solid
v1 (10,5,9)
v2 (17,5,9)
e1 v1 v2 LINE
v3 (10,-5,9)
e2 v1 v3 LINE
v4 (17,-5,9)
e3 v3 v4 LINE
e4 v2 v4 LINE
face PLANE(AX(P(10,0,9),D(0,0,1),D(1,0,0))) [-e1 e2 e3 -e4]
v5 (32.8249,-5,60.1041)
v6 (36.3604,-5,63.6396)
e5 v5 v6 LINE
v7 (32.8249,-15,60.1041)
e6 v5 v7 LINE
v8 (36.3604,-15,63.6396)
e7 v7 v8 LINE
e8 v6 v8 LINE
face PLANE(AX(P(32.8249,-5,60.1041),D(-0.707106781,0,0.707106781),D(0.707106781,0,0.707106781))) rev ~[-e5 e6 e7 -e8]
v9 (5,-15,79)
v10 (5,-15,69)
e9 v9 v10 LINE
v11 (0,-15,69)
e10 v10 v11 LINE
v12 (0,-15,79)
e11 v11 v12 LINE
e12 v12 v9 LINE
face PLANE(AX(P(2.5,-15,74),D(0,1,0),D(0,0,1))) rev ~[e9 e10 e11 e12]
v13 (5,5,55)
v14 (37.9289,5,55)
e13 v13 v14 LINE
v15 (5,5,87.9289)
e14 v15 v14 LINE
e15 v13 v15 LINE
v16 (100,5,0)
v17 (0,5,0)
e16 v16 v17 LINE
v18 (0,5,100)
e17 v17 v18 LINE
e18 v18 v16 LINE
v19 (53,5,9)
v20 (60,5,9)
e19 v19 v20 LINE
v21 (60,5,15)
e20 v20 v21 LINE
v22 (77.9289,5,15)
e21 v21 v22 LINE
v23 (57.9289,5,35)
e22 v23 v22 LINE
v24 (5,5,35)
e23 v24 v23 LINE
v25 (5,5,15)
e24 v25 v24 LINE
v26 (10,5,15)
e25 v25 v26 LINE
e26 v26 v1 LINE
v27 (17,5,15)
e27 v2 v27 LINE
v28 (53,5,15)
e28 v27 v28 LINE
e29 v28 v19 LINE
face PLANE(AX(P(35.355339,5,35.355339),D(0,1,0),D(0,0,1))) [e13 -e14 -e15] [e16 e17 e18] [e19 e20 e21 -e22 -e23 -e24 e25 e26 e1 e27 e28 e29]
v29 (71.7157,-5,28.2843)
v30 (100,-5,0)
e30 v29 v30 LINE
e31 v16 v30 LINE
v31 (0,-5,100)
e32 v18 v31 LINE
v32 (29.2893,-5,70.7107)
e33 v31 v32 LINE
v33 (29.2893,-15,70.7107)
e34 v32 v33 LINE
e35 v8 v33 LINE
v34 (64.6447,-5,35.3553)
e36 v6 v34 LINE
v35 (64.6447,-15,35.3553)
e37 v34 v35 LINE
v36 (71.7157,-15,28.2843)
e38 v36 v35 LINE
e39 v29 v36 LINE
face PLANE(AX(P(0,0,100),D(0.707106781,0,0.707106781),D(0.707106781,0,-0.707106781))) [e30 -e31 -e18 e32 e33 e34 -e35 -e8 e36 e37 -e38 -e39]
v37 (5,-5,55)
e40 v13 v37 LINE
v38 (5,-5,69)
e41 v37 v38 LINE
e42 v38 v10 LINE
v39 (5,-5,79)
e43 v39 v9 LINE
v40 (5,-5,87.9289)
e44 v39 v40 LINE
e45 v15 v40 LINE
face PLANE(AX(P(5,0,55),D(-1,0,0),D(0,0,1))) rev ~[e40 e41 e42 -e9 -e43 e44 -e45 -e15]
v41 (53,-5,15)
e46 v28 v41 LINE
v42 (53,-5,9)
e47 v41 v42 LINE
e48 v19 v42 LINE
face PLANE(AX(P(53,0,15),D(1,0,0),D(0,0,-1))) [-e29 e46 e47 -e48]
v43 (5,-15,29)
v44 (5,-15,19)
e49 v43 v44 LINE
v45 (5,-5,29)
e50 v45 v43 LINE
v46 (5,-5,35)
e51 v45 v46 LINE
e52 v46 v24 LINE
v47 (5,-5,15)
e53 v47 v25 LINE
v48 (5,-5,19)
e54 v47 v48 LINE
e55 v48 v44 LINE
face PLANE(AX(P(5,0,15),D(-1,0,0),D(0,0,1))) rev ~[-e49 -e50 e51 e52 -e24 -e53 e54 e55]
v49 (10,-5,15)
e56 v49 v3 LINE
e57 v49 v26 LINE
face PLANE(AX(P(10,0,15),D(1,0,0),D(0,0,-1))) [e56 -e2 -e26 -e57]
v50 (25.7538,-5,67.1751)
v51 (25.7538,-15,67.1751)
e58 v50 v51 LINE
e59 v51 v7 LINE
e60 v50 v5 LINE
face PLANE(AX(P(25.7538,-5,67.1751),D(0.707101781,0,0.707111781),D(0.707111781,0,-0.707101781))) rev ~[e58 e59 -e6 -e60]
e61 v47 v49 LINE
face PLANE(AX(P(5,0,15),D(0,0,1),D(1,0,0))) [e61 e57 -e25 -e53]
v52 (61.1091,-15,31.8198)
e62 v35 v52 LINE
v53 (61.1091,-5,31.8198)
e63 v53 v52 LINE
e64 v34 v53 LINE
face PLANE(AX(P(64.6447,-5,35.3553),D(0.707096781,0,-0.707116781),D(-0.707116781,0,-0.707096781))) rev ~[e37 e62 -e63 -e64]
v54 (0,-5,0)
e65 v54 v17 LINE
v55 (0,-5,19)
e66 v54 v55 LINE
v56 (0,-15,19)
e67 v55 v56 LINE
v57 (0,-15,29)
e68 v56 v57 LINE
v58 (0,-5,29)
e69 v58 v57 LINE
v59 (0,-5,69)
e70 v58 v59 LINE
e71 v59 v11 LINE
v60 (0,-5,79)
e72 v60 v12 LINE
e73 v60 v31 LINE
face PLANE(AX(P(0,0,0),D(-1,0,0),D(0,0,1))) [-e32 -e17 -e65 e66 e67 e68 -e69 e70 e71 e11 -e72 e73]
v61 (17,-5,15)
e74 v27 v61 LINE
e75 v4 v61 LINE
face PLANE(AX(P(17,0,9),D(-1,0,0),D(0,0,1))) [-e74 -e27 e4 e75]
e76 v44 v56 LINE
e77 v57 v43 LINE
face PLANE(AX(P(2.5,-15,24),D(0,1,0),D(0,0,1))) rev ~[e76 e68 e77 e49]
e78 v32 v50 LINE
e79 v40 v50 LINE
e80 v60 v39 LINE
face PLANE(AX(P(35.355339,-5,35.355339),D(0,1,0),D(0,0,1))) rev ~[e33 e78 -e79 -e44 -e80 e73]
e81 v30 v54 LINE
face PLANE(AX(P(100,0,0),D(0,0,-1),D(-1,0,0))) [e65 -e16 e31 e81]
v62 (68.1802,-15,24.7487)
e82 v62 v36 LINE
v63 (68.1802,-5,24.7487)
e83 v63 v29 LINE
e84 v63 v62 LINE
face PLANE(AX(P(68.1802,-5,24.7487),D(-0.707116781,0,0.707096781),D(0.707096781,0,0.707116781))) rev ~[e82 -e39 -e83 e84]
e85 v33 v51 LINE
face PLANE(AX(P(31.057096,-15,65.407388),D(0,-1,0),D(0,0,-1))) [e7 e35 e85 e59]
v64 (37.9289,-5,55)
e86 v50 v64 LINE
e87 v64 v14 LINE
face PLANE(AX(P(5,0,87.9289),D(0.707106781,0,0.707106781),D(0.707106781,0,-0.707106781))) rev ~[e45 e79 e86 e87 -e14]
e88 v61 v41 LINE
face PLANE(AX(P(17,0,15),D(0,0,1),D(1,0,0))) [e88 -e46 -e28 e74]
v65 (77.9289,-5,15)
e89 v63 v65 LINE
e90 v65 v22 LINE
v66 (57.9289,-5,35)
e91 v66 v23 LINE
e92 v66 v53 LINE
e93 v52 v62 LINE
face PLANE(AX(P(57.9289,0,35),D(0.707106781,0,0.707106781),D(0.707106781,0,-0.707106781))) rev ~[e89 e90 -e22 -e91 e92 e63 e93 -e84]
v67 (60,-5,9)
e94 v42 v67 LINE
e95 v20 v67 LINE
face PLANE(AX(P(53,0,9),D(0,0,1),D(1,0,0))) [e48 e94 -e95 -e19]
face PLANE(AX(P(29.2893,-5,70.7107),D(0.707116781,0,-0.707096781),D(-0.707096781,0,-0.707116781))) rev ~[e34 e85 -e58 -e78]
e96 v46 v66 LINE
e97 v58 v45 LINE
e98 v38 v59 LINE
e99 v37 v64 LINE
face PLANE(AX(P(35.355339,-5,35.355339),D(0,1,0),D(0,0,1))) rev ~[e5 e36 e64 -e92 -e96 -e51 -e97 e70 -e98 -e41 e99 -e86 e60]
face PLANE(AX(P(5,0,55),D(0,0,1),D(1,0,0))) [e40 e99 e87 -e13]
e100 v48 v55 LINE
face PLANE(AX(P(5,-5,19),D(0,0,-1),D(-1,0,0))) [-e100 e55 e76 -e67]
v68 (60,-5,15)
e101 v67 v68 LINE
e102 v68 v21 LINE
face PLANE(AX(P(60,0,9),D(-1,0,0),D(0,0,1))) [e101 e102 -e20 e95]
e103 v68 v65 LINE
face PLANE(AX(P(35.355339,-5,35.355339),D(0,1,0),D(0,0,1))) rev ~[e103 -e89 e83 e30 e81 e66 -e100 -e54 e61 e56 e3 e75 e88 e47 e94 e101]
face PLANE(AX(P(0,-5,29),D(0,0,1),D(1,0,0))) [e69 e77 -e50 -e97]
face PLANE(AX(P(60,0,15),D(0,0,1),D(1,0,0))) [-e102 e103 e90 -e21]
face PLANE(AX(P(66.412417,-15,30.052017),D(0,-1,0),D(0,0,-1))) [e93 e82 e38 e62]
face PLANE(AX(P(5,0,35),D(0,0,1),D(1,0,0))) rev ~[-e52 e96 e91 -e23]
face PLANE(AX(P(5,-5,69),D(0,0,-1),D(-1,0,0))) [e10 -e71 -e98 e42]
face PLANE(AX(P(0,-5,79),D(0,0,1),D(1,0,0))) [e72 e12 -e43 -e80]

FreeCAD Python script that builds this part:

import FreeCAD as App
import Part
import Sketcher

V = App.Vector
Q = App.Units.Quantity

doc = App.newDocument("Part")
body = doc.addObject("PartDesign::Body", "Body")

# Sketch on XZ plane
sketch1 = doc.addObject("Sketcher::SketchObject", "Sketch")
body.addObject(sketch1)
sketch1.AttachmentSupport = (doc.XZ_Plane, [""])
sketch1.MapMode = "FlatFace"
sketch1.addGeometry(Part.LineSegment(V(0, 0, 0), V(100, 0, 0)), False)
sketch1.addGeometry(Part.LineSegment(V(100, 0, 0), V(0, 100, 0)), False)
sketch1.addGeometry(Part.LineSegment(V(0, 100, 0), V(0, 0, 0)), False)
sketch1.addGeometry(Part.LineSegment(V(60, 15, 0), V(60, 9, 0)), False)
sketch1.addGeometry(Part.LineSegment(V(60, 9, 0), V(53, 9, 0)), False)
sketch1.addGeometry(Part.LineSegment(V(53, 9, 0), V(53, 15, 0)), False)
sketch1.addGeometry(Part.LineSegment(V(53, 15, 0), V(17, 15, 0)), False)
sketch1.addGeometry(Part.LineSegment(V(17, 15, 0), V(17, 9, 0)), False)
sketch1.addGeometry(Part.LineSegment(V(17, 9, 0), V(10, 9, 0)), False)
sketch1.addGeometry(Part.LineSegment(V(10, 9, 0), V(10, 15, 0)), False)
sketch1.addGeometry(Part.LineSegment(V(10, 15, 0), V(5, 15, 0)), False)
sketch1.addGeometry(Part.LineSegment(V(5, 15, 0), V(5, 35, 0)), False)
sketch1.addGeometry(Part.LineSegment(V(5, 35, 0), V(57.9289, 35, 0)), False)
sketch1.addGeometry(Part.LineSegment(V(57.9289, 35, 0), V(77.9289, 15, 0)), False)
sketch1.addGeometry(Part.LineSegment(V(77.9289, 15, 0), V(60, 15, 0)), False)
sketch1.addGeometry(Part.LineSegment(V(37.9289, 55, 0), V(5, 55, 0)), False)
sketch1.addGeometry(Part.LineSegment(V(5, 55, 0), V(5, 87.9289, 0)), False)
sketch1.addGeometry(Part.LineSegment(V(5, 87.9289, 0), V(37.9289, 55, 0)), False)
sketch1.addConstraint(Sketcher.Constraint("Coincident", 0, 2, 1, 1))
sketch1.addConstraint(Sketcher.Constraint("Coincident", 1, 2, 2, 1))
sketch1.addConstraint(Sketcher.Constraint("Coincident", 2, 2, 0, 1))
sketch1.addConstraint(Sketcher.Constraint("Coincident", 3, 2, 4, 1))
sketch1.addConstraint(Sketcher.Constraint("Coincident", 4, 2, 5, 1))
sketch1.addConstraint(Sketcher.Constraint("Coincident", 5, 2, 6, 1))
sketch1.addConstraint(Sketcher.Constraint("Coincident", 6, 2, 7, 1))
sketch1.addConstraint(Sketcher.Constraint("Coincident", 7, 2, 8, 1))
sketch1.addConstraint(Sketcher.Constraint("Coincident", 8, 2, 9, 1))
sketch1.addConstraint(Sketcher.Constraint("Coincident", 9, 2, 10, 1))
sketch1.addConstraint(Sketcher.Constraint("Coincident", 10, 2, 11, 1))
sketch1.addConstraint(Sketcher.Constraint("Coincident", 11, 2, 12, 1))
sketch1.addConstraint(Sketcher.Constraint("Coincident", 12, 2, 13, 1))
sketch1.addConstraint(Sketcher.Constraint("Coincident", 13, 2, 14, 1))
sketch1.addConstraint(Sketcher.Constraint("Coincident", 14, 2, 3, 1))
sketch1.addConstraint(Sketcher.Constraint("Coincident", 15, 2, 16, 1))
sketch1.addConstraint(Sketcher.Constraint("Coincident", 16, 2, 17, 1))
sketch1.addConstraint(Sketcher.Constraint("Coincident", 17, 2, 15, 1))
sketch1.addConstraint(Sketcher.Constraint("Horizontal", 0))
sketch1.addConstraint(Sketcher.Constraint("Vertical", 2))
sketch1.addConstraint(Sketcher.Constraint("Vertical", 3))
sketch1.addConstraint(Sketcher.Constraint("Horizontal", 4))
sketch1.addConstraint(Sketcher.Constraint("Vertical", 5))
sketch1.addConstraint(Sketcher.Constraint("Horizontal", 6))
sketch1.addConstraint(Sketcher.Constraint("Vertical", 7))
sketch1.addConstraint(Sketcher.Constraint("Horizontal", 8))
sketch1.addConstraint(Sketcher.Constraint("Vertical", 9))
sketch1.addConstraint(Sketcher.Constraint("Horizontal", 10))
sketch1.addConstraint(Sketcher.Constraint("Vertical", 11))
sketch1.addConstraint(Sketcher.Constraint("Horizontal", 12))
sketch1.addConstraint(Sketcher.Constraint("Horizontal", 14))
sketch1.addConstraint(Sketcher.Constraint("Horizontal", 15))
sketch1.addConstraint(Sketcher.Constraint("Vertical", 16))
sketch1.addConstraint(Sketcher.Constraint("Coincident", 2, 2, -1, 1))
sketch1.addConstraint(Sketcher.Constraint("Parallel", 1, 13))
sketch1.addConstraint(Sketcher.Constraint("Parallel", 13, 17))
sketch1.addConstraint(Sketcher.Constraint("Horizontal", 4, 2, 7, 2))
sketch1.addConstraint(Sketcher.Constraint("Horizontal", 6, 2, 9, 2))
sketch1.addConstraint(Sketcher.Constraint("Horizontal", 10, 2, 13, 2))
sketch1.addConstraint(Sketcher.Constraint("Vertical", 11, 2, 15, 2))
sketch1.addConstraint(Sketcher.Constraint("Equal", 4, 8))
sketch1.addConstraint(Sketcher.Constraint("Equal", 0, 2))
sketch1.addConstraint(Sketcher.Constraint("DistanceX", 0, 1, 0, 2, Q("100 mm")))
sketch1.addConstraint(Sketcher.Constraint("DistanceX", 4, 2, 4, 1, Q("7 mm")))
sketch1.addConstraint(Sketcher.Constraint("DistanceX", 6, 2, 6, 1, Q("36 mm")))
sketch1.addConstraint(Sketcher.Constraint("DistanceX", 10, 2, 10, 1, Q("5 mm")))
sketch1.addConstraint(Sketcher.Constraint("DistanceY", 3, 2, 3, 1, Q("6 mm")))
sketch1.addConstraint(Sketcher.Constraint("DistanceY", 11, 1, 11, 2, Q("20 mm")))
sketch1.addConstraint(Sketcher.Constraint("DistanceX", -1, 1, 3, 2, Q("60 mm")))
sketch1.addConstraint(Sketcher.Constraint("DistanceY", -1, 1, 3, 2, Q("9 mm")))
sketch1.addConstraint(Sketcher.Constraint("DistanceY", -1, 1, 15, 2, Q("55 mm")))
sketch1.addConstraint(Sketcher.Constraint("DistanceX", 17, 2, 12, 2, Q("20 mm")))
sketch1.addConstraint(Sketcher.Constraint("DistanceX", 12, 1, 12, 2, Q("52.929 mm")))
pad1 = doc.addObject("PartDesign::Pad", "Pad")
body.addObject(pad1)
pad1.Profile = sketch1
pad1.Length = 10
pad1.Midplane = True

# Sketch on XZ plane
sketch2 = doc.addObject("Sketcher::SketchObject", "Sketch001")
body.addObject(sketch2)
sketch2.AttachmentSupport = (doc.XZ_Plane, [""])
sketch2.MapMode = "FlatFace"
sketch2.AttachmentOffset = App.Placement(V(0, 0, 5), App.Rotation())
sketch2.addGeometry(Part.LineSegment(V(5, 69, 0), V(5, 79, 0)), False)
sketch2.addGeometry(Part.LineSegment(V(5, 79, 0), V(0, 79, 0)), False)
sketch2.addGeometry(Part.LineSegment(V(0, 79, 0), V(0, 69, 0)), False)
sketch2.addGeometry(Part.LineSegment(V(0, 69, 0), V(5, 69, 0)), False)
sketch2.addGeometry(Part.LineSegment(V(0, 19, 0), V(5, 19, 0)), False)
sketch2.addGeometry(Part.LineSegment(V(5, 19, 0), V(5, 29, 0)), False)
sketch2.addGeometry(Part.LineSegment(V(5, 29, 0), V(0, 29, 0)), False)
sketch2.addGeometry(Part.LineSegment(V(0, 29, 0), V(0, 19, 0)), False)
sketch2.addGeometry(Part.LineSegment(V(29.2893, 70.7107, 0), V(25.7538, 67.1751, 0)), False)
sketch2.addGeometry(Part.LineSegment(V(25.7538, 67.1751, 0), V(32.8249, 60.1041, 0)), False)
sketch2.addGeometry(Part.LineSegment(V(32.8249, 60.1041, 0), V(36.3604, 63.6396, 0)), False)
sketch2.addGeometry(Part.LineSegment(V(36.3604, 63.6396, 0), V(29.2893, 70.7107, 0)), False)
sketch2.addGeometry(Part.LineSegment(V(68.1802, 24.7487, 0), V(71.7157, 28.2843, 0)), False)
sketch2.addGeometry(Part.LineSegment(V(71.7157, 28.2843, 0), V(64.6447, 35.3553, 0)), False)
sketch2.addGeometry(Part.LineSegment(V(64.6447, 35.3553, 0), V(61.1091, 31.8198, 0)), False)
sketch2.addGeometry(Part.LineSegment(V(61.1091, 31.8198, 0), V(68.1802, 24.7487, 0)), False)
sketch2.addConstraint(Sketcher.Constraint("Coincident", 0, 2, 1, 1))
sketch2.addConstraint(Sketcher.Constraint("Coincident", 1, 2, 2, 1))
sketch2.addConstraint(Sketcher.Constraint("Coincident", 2, 2, 3, 1))
sketch2.addConstraint(Sketcher.Constraint("Coincident", 3, 2, 0, 1))
sketch2.addConstraint(Sketcher.Constraint("Coincident", 4, 2, 5, 1))
sketch2.addConstraint(Sketcher.Constraint("Coincident", 5, 2, 6, 1))
sketch2.addConstraint(Sketcher.Constraint("Coincident", 6, 2, 7, 1))
sketch2.addConstraint(Sketcher.Constraint("Coincident", 7, 2, 4, 1))
sketch2.addConstraint(Sketcher.Constraint("Coincident", 8, 2, 9, 1))
sketch2.addConstraint(Sketcher.Constraint("Coincident", 9, 2, 10, 1))
sketch2.addConstraint(Sketcher.Constraint("Coincident", 10, 2, 11, 1))
sketch2.addConstraint(Sketcher.Constraint("Coincident", 11, 2, 8, 1))
sketch2.addConstraint(Sketcher.Constraint("Coincident", 12, 2, 13, 1))
sketch2.addConstraint(Sketcher.Constraint("Coincident", 13, 2, 14, 1))
sketch2.addConstraint(Sketcher.Constraint("Coincident", 14, 2, 15, 1))
sketch2.addConstraint(Sketcher.Constraint("Coincident", 15, 2, 12, 1))
sketch2.addConstraint(Sketcher.Constraint("Vertical", 0))
sketch2.addConstraint(Sketcher.Constraint("Horizontal", 1))
sketch2.addConstraint(Sketcher.Constraint("Vertical", 2))
sketch2.addConstraint(Sketcher.Constraint("Horizontal", 3))
sketch2.addConstraint(Sketcher.Constraint("Horizontal", 4))
sketch2.addConstraint(Sketcher.Constraint("Vertical", 5))
sketch2.addConstraint(Sketcher.Constraint("Horizontal", 6))
sketch2.addConstraint(Sketcher.Constraint("Vertical", 7))
sketch2.addConstraint(Sketcher.Constraint("PointOnObject", 1, 2, -2))
sketch2.addConstraint(Sketcher.Constraint("PointOnObject", 6, 2, -2))
sketch2.addConstraint(Sketcher.Constraint("Perpendicular", 8, 9))
sketch2.addConstraint(Sketcher.Constraint("Perpendicular", 9, 10))
sketch2.addConstraint(Sketcher.Constraint("Perpendicular", 10, 11))
sketch2.addConstraint(Sketcher.Constraint("Perpendicular", 11, 12))
sketch2.addConstraint(Sketcher.Constraint("Perpendicular", 12, 13))
sketch2.addConstraint(Sketcher.Constraint("Perpendicular", 13, 14))
sketch2.addConstraint(Sketcher.Constraint("Perpendicular", 14, 15))
sketch2.addConstraint(Sketcher.Constraint("Vertical", 3, 2, 4, 2))
sketch2.addConstraint(Sketcher.Constraint("Equal", 2, 5))
sketch2.addConstraint(Sketcher.Constraint("Equal", 10, 12))
sketch2.addConstraint(Sketcher.Constraint("Equal", 11, 13))
sketch2.addConstraint(Sketcher.Constraint("DistanceX", 1, 2, 1, 1, Q("5 mm")))
sketch2.addConstraint(Sketcher.Constraint("DistanceY", 0, 1, 0, 2, Q("10 mm")))
sketch2.addConstraint(Sketcher.Constraint("Angle", 8, Q("-134.9992 deg")))
sketch2.addConstraint(Sketcher.Constraint("Distance", 8, Q("5 mm")))
sketch2.addConstraint(Sketcher.Constraint("Distance", 9, Q("10 mm")))
sketch2.addConstraint(Sketcher.Constraint("DistanceY", -1, 1, 0, 2, Q("79 mm")))
sketch2.addConstraint(Sketcher.Constraint("DistanceY", -1, 1, 4, 2, Q("19 mm")))
sketch2.addConstraint(Sketcher.Constraint("DistanceY", -1, 1, 8, 2, Q("67.175 mm")))
sketch2.addConstraint(Sketcher.Constraint("DistanceX", -1, 1, 9, 2, Q("32.825 mm")))
sketch2.addConstraint(Sketcher.Constraint("DistanceX", -1, 1, 14, 2, Q("61.109 mm")))
sketch2.addConstraint(Sketcher.Constraint("DistanceY", 15, 2, 10, 2, Q("38.891 mm")))
pad2 = doc.addObject("PartDesign::Pad", "Pad001")
body.addObject(pad2)
pad2.Profile = sketch2
pad2.Length = 10

doc.recompute()
